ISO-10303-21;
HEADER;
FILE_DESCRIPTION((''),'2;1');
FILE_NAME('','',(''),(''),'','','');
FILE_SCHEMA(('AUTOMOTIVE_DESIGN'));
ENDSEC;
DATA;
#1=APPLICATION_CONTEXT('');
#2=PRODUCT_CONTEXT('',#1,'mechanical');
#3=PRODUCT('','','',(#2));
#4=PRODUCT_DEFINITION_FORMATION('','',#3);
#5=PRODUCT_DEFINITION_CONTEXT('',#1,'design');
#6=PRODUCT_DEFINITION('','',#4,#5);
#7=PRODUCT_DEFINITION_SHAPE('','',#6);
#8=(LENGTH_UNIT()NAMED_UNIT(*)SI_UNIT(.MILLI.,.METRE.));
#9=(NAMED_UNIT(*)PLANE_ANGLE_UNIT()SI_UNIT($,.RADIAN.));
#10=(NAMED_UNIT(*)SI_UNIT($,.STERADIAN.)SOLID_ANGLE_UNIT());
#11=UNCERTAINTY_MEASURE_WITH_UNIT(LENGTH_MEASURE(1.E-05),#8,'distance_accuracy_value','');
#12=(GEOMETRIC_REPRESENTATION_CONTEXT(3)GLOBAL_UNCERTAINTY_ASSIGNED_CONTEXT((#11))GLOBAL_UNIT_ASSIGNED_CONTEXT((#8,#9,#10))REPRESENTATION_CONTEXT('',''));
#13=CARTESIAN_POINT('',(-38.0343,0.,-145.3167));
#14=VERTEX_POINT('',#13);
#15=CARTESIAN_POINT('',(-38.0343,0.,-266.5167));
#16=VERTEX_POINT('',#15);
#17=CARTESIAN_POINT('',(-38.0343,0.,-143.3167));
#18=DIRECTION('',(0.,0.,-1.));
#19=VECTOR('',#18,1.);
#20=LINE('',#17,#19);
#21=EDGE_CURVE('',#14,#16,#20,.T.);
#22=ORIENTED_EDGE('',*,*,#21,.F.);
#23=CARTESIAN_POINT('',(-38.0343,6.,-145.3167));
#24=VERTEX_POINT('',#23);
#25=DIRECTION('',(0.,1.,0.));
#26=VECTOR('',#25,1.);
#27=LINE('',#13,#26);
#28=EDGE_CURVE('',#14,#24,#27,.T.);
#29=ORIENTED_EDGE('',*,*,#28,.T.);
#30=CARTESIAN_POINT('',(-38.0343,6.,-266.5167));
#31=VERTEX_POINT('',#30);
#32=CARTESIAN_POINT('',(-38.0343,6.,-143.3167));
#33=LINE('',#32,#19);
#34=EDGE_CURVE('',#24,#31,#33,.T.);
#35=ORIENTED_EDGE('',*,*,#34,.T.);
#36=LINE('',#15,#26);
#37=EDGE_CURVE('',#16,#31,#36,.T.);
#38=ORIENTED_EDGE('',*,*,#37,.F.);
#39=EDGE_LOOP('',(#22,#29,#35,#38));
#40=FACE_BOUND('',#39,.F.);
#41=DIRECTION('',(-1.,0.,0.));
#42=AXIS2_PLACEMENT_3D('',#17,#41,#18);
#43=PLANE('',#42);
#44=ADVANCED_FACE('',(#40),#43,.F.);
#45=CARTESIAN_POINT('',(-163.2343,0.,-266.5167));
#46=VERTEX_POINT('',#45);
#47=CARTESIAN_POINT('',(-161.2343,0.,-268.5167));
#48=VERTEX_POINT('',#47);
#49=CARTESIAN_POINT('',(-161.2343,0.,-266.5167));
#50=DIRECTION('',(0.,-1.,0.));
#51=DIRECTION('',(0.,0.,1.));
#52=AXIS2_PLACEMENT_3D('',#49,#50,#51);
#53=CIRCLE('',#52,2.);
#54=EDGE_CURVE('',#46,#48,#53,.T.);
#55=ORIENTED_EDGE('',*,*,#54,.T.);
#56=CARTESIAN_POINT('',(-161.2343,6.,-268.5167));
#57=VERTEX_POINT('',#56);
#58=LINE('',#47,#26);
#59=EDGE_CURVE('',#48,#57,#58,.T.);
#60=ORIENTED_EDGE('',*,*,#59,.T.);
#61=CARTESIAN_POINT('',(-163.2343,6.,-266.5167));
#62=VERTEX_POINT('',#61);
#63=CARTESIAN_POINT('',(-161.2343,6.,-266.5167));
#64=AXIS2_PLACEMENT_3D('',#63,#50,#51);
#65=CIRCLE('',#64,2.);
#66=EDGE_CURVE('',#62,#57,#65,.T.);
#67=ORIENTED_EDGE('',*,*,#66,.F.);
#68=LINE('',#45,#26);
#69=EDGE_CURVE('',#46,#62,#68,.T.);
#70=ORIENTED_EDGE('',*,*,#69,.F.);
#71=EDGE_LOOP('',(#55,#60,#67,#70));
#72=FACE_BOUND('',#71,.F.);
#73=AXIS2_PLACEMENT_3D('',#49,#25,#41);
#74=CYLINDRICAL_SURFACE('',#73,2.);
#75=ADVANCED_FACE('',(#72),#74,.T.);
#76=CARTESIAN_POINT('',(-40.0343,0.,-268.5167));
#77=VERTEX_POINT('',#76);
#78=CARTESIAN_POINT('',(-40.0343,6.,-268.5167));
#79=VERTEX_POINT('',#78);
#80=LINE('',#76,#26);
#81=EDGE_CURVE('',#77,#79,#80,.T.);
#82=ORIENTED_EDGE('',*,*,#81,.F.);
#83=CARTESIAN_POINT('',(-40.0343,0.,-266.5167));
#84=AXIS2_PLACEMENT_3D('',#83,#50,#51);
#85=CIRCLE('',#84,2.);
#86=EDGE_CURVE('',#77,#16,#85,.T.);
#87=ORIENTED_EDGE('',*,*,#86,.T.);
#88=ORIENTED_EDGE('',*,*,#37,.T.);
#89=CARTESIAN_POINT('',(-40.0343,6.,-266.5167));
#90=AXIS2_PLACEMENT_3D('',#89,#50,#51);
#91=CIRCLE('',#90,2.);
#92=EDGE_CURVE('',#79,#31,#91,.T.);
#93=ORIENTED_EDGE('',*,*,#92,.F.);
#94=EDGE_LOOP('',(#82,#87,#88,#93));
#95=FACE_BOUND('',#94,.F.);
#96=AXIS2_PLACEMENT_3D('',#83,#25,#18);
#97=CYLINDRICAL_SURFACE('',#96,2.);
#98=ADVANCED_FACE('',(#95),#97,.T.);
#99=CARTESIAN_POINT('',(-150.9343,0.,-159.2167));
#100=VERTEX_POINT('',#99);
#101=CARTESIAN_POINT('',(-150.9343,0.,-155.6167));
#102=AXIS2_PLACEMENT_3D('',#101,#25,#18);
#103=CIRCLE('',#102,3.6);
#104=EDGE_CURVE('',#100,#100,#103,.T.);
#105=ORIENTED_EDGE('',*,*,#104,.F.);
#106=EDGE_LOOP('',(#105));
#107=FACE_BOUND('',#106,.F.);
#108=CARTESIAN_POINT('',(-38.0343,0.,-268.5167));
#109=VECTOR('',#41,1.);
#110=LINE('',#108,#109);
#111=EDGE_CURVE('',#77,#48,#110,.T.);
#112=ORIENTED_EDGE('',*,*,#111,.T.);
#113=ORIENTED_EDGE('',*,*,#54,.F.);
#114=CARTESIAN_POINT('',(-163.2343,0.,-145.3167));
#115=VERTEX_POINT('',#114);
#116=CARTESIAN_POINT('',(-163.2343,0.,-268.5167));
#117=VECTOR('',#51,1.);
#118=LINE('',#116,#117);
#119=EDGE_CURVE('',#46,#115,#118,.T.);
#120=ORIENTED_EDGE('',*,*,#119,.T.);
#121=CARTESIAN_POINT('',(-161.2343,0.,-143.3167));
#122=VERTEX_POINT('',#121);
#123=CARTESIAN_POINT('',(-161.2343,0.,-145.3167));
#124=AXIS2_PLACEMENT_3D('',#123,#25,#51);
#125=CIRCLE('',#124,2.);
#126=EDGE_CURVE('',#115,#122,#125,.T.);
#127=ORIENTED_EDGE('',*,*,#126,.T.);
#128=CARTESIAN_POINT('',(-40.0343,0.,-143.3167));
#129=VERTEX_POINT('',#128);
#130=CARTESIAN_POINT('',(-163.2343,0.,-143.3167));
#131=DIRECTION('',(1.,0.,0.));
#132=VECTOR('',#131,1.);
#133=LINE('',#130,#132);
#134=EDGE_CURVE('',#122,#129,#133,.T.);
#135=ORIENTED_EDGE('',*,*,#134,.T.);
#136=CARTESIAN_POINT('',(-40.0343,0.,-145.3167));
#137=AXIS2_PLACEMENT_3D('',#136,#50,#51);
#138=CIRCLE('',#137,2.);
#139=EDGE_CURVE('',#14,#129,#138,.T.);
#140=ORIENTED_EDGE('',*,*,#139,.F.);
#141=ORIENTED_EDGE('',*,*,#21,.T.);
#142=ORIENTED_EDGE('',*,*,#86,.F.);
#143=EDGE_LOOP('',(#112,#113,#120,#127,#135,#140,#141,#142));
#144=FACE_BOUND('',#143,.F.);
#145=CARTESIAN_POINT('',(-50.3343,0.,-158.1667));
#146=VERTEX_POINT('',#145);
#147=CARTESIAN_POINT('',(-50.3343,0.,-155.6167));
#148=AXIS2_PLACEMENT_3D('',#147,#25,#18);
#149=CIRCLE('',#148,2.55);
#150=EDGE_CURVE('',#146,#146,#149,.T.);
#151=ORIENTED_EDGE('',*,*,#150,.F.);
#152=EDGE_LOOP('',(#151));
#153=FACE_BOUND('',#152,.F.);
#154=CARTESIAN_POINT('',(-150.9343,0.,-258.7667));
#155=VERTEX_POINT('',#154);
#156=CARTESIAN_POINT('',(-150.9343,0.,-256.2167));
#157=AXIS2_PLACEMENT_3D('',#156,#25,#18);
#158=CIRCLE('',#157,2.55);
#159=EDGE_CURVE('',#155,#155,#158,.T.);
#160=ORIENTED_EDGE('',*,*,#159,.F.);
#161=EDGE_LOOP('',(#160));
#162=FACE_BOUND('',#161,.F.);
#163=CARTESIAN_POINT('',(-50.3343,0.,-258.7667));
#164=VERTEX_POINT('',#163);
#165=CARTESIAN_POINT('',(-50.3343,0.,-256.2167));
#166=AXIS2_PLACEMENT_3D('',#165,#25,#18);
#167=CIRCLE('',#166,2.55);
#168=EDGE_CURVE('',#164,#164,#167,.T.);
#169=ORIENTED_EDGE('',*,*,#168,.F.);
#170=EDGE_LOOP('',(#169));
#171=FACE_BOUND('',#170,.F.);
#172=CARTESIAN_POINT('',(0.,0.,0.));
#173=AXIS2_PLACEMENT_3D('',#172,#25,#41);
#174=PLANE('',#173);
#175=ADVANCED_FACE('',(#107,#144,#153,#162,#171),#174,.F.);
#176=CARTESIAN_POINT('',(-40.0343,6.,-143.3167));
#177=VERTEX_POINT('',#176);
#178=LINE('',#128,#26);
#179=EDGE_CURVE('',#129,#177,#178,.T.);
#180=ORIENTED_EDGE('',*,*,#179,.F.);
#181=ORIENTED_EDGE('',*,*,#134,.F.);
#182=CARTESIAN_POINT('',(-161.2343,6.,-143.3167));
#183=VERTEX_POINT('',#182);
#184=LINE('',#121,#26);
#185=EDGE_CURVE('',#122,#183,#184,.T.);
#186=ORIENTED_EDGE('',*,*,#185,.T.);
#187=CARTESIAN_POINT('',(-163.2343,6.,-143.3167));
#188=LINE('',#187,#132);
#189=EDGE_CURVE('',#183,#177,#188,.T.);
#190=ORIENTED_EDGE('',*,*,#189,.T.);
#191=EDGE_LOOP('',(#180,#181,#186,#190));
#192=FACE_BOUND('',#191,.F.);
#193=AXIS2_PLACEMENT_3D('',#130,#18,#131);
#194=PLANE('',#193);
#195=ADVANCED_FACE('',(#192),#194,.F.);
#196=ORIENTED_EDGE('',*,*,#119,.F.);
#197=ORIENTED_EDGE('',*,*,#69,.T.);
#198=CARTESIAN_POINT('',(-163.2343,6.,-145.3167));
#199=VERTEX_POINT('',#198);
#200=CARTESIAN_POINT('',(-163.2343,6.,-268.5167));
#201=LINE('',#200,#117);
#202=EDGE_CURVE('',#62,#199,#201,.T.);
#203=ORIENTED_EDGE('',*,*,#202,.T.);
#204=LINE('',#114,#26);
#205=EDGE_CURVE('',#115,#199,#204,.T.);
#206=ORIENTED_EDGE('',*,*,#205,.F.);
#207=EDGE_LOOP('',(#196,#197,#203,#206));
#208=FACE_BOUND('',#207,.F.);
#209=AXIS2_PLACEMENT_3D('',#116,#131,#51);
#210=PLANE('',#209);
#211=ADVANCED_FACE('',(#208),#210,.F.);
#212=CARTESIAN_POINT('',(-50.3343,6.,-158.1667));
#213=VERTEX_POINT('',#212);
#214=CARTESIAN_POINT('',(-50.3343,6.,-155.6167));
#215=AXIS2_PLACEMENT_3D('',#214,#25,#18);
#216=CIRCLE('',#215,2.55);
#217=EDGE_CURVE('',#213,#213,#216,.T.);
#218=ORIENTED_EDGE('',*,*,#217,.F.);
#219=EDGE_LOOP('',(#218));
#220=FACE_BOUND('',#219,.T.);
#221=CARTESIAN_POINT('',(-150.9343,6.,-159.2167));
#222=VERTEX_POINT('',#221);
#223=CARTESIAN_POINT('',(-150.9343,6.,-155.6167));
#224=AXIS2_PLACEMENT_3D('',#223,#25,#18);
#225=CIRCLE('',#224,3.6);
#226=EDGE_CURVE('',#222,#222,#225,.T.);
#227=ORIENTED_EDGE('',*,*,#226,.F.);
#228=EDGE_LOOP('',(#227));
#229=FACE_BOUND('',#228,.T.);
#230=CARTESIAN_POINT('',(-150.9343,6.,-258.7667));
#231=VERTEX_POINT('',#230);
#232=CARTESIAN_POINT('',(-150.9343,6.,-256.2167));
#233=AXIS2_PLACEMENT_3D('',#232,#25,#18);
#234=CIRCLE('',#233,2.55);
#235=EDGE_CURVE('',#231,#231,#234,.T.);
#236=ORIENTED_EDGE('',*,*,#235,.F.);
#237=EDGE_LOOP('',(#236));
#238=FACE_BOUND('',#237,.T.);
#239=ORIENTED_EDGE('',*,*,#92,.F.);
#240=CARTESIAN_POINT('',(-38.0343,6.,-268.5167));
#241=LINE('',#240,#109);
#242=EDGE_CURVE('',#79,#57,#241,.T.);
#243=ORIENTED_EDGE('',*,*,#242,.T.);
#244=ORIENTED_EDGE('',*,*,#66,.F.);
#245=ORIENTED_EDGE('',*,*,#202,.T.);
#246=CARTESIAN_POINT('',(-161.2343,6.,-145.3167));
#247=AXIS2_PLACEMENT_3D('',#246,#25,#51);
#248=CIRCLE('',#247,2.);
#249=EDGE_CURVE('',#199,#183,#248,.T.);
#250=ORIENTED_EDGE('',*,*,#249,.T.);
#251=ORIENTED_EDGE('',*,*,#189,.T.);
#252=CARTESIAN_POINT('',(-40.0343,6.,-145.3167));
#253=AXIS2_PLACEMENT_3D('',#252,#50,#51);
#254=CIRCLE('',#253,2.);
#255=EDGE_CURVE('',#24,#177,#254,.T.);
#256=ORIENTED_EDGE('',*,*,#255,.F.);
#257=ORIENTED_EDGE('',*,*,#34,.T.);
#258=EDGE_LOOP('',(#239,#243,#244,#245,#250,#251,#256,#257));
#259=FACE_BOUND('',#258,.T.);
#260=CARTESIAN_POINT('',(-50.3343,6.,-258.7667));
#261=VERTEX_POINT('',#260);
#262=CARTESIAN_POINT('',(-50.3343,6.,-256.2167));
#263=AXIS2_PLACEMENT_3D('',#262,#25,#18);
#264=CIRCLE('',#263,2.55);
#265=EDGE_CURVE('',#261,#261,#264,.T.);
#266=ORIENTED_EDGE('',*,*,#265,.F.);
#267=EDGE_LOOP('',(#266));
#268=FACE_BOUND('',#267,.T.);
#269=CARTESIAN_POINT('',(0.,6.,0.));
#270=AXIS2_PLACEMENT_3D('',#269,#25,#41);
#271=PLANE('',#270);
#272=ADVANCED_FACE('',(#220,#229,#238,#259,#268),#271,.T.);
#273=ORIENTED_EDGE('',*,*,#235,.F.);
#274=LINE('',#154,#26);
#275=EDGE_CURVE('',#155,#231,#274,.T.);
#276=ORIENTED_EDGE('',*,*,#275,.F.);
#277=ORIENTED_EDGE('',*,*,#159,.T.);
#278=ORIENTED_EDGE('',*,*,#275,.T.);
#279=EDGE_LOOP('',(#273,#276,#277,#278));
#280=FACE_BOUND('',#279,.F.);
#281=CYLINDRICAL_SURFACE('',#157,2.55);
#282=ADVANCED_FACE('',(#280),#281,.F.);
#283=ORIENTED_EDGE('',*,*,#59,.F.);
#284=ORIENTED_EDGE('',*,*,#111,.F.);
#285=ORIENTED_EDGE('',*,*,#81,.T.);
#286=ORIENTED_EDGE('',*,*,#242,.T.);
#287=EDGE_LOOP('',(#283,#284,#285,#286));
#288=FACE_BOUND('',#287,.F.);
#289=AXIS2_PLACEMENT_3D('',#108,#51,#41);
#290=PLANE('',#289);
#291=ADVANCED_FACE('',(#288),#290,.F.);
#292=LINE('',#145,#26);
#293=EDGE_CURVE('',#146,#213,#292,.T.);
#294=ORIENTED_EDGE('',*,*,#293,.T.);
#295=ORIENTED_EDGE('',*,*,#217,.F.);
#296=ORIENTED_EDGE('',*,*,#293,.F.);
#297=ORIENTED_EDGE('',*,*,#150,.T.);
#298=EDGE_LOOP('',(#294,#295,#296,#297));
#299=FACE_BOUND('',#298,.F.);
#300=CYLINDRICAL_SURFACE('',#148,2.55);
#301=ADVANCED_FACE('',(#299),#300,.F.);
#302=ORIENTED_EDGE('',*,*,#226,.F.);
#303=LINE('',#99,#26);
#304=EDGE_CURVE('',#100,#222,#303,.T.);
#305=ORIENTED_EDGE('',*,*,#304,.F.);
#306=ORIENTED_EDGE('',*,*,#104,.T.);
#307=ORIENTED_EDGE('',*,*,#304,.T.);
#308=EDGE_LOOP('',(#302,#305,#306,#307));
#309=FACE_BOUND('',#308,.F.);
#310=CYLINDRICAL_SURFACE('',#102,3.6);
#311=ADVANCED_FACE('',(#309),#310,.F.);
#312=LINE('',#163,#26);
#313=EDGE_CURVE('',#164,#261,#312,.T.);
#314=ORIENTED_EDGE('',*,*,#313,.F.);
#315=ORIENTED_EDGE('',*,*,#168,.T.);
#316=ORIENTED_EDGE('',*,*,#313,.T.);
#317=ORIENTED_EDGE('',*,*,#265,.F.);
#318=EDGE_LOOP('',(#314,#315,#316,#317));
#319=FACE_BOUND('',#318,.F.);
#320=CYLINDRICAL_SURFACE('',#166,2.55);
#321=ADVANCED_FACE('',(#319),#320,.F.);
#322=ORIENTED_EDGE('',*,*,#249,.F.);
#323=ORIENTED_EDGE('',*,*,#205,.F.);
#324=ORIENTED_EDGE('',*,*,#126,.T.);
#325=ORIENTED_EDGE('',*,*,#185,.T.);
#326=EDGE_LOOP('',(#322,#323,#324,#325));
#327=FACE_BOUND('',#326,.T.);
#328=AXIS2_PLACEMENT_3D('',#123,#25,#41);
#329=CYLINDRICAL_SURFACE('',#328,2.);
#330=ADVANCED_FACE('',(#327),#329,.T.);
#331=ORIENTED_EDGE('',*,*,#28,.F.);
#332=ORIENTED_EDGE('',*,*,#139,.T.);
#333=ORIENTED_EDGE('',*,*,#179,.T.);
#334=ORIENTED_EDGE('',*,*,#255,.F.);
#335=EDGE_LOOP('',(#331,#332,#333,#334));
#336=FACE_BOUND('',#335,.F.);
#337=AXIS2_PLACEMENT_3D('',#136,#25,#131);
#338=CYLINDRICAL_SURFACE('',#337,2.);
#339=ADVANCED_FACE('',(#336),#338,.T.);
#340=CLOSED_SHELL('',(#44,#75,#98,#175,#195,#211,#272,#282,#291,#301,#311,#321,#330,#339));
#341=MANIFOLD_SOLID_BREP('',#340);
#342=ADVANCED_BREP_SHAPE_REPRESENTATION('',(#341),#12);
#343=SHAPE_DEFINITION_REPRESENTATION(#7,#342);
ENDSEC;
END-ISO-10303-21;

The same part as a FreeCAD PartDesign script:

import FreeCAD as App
import Part
import Sketcher
from FreeCAD import Vector
Q = App.Units.Quantity


def edges_at(feature, points):
    """Names of the edges that pass closest to the given points."""
    edges = feature.Shape.Edges
    near = lambda p: min(range(len(edges)), key=lambda i: edges[i].distToShape(Part.Vertex(*p))[0])
    return sorted({f"Edge{near(p) + 1}" for p in points})

doc = App.newDocument("Part")
body = doc.addObject("PartDesign::Body", "Body")

sketch1 = body.newObject("Sketcher::SketchObject", "Sketch")
sketch1.AttachmentSupport = (doc.getObject("XZ_Plane"), [""])
sketch1.MapMode = "FlatFace"
sketch1.addGeometry([
    Part.LineSegment(Vector(-163.2343, -268.5167, 0), Vector(-163.2343, -143.3167, 0)),
    Part.LineSegment(Vector(-163.2343, -143.3167, 0), Vector(-38.0343, -143.3167, 0)),
    Part.LineSegment(Vector(-38.0343, -143.3167, 0), Vector(-38.0343, -268.5167, 0)),
    Part.LineSegment(Vector(-38.0343, -268.5167, 0), Vector(-163.2343, -268.5167, 0)),
], False)
sketch1.addConstraint([
    Sketcher.Constraint("Coincident", 0, 2, 1, 1),
    Sketcher.Constraint("Coincident", 1, 2, 2, 1),
    Sketcher.Constraint("Coincident", 2, 2, 3, 1),
    Sketcher.Constraint("Coincident", 3, 2, 0, 1),
    Sketcher.Constraint("Vertical", 0),
    Sketcher.Constraint("Horizontal", 1),
    Sketcher.Constraint("Vertical", 2),
    Sketcher.Constraint("Horizontal", 3),
    Sketcher.Constraint("Equal", 3, 0),
    Sketcher.Constraint("DistanceX", 1, 1, 1, 2, Q("125.2 mm")),
    Sketcher.Constraint("DistanceX", 0, 2, -1, 1, Q("163.2343 mm")),
    Sketcher.Constraint("DistanceY", 0, 2, -1, 1, Q("143.3167 mm")),
])
pad1 = body.newObject("PartDesign::Pad", "Pad")
pad1.Profile = sketch1
pad1.Length = 6
pad1.Reversed = True
doc.recompute()

fillet = body.newObject("PartDesign::Fillet", "Fillet")
fillet.Base = (pad1, edges_at(pad1, [
    (-163.234, 3, -268.517),
    (-163.234, 3, -143.317),
    (-38.034, 3, -143.317),
    (-38.034, 3, -268.517),
]))
fillet.Radius = 2

sketch2 = body.newObject("Sketcher::SketchObject", "Sketch001")
sketch2.AttachmentSupport = (doc.getObject("XZ_Plane"), [""])
sketch2.MapMode = "FlatFace"
sketch2.addGeometry([
    Part.Circle(Vector(-150.9343, -256.2167, 0), Vector(0, 0, 1), 2.55),
    Part.Circle(Vector(-50.3343, -256.2167, 0), Vector(0, 0, 1), 2.55),
    Part.Circle(Vector(-50.3343, -155.6167, 0), Vector(0, 0, 1), 2.55),
], False)
sketch2.addConstraint([
    Sketcher.Constraint("Equal", 0, 1),
    Sketcher.Constraint("Equal", 1, 2),
    Sketcher.Constraint("Horizontal", 0, 3, 1, 3),
    Sketcher.Constraint("Vertical", 1, 3, 2, 3),
    Sketcher.Constraint("Diameter", 0, Q("5.1 mm")),
    Sketcher.Constraint("DistanceX", 0, 3, 1, 3, Q("100.6 mm")),
    Sketcher.Constraint("DistanceY", 1, 3, 2, 3, Q("100.6 mm")),
    Sketcher.Constraint("DistanceX", 0, 3, -1, 1, Q("150.9343 mm")),
    Sketcher.Constraint("DistanceY", 0, 3, -1, 1, Q("256.2167 mm")),
])
doc.recompute()
hole = body.newObject("PartDesign::Hole", "Hole")
hole.Profile = sketch2
hole.ThreadType = "None"
hole.Diameter = 5.1
hole.DepthType = "ThroughAll"

sketch3 = body.newObject("Sketcher::SketchObject", "Sketch002")
sketch3.AttachmentSupport = (doc.getObject("XZ_Plane"), [""])
sketch3.MapMode = "FlatFace"
sketch3.addGeometry(Part.Circle(Vector(-150.9343, -155.6167, 0), Vector(0, 0, 1), 3.6), False)
sketch3.addConstraint([
    Sketcher.Constraint("Diameter", 0, Q("7.2 mm")),
    Sketcher.Constraint("DistanceX", 0, 3, -1, 1, Q("150.9343 mm")),
    Sketcher.Constraint("DistanceY", 0, 3, -1, 1, Q("155.6167 mm")),
])
doc.recompute()
hole2 = body.newObject("PartDesign::Hole", "Hole001")
hole2.Profile = sketch3
hole2.ThreadType = "None"
hole2.Diameter = 7.2
hole2.DepthType = "ThroughAll"

doc.recompute()
